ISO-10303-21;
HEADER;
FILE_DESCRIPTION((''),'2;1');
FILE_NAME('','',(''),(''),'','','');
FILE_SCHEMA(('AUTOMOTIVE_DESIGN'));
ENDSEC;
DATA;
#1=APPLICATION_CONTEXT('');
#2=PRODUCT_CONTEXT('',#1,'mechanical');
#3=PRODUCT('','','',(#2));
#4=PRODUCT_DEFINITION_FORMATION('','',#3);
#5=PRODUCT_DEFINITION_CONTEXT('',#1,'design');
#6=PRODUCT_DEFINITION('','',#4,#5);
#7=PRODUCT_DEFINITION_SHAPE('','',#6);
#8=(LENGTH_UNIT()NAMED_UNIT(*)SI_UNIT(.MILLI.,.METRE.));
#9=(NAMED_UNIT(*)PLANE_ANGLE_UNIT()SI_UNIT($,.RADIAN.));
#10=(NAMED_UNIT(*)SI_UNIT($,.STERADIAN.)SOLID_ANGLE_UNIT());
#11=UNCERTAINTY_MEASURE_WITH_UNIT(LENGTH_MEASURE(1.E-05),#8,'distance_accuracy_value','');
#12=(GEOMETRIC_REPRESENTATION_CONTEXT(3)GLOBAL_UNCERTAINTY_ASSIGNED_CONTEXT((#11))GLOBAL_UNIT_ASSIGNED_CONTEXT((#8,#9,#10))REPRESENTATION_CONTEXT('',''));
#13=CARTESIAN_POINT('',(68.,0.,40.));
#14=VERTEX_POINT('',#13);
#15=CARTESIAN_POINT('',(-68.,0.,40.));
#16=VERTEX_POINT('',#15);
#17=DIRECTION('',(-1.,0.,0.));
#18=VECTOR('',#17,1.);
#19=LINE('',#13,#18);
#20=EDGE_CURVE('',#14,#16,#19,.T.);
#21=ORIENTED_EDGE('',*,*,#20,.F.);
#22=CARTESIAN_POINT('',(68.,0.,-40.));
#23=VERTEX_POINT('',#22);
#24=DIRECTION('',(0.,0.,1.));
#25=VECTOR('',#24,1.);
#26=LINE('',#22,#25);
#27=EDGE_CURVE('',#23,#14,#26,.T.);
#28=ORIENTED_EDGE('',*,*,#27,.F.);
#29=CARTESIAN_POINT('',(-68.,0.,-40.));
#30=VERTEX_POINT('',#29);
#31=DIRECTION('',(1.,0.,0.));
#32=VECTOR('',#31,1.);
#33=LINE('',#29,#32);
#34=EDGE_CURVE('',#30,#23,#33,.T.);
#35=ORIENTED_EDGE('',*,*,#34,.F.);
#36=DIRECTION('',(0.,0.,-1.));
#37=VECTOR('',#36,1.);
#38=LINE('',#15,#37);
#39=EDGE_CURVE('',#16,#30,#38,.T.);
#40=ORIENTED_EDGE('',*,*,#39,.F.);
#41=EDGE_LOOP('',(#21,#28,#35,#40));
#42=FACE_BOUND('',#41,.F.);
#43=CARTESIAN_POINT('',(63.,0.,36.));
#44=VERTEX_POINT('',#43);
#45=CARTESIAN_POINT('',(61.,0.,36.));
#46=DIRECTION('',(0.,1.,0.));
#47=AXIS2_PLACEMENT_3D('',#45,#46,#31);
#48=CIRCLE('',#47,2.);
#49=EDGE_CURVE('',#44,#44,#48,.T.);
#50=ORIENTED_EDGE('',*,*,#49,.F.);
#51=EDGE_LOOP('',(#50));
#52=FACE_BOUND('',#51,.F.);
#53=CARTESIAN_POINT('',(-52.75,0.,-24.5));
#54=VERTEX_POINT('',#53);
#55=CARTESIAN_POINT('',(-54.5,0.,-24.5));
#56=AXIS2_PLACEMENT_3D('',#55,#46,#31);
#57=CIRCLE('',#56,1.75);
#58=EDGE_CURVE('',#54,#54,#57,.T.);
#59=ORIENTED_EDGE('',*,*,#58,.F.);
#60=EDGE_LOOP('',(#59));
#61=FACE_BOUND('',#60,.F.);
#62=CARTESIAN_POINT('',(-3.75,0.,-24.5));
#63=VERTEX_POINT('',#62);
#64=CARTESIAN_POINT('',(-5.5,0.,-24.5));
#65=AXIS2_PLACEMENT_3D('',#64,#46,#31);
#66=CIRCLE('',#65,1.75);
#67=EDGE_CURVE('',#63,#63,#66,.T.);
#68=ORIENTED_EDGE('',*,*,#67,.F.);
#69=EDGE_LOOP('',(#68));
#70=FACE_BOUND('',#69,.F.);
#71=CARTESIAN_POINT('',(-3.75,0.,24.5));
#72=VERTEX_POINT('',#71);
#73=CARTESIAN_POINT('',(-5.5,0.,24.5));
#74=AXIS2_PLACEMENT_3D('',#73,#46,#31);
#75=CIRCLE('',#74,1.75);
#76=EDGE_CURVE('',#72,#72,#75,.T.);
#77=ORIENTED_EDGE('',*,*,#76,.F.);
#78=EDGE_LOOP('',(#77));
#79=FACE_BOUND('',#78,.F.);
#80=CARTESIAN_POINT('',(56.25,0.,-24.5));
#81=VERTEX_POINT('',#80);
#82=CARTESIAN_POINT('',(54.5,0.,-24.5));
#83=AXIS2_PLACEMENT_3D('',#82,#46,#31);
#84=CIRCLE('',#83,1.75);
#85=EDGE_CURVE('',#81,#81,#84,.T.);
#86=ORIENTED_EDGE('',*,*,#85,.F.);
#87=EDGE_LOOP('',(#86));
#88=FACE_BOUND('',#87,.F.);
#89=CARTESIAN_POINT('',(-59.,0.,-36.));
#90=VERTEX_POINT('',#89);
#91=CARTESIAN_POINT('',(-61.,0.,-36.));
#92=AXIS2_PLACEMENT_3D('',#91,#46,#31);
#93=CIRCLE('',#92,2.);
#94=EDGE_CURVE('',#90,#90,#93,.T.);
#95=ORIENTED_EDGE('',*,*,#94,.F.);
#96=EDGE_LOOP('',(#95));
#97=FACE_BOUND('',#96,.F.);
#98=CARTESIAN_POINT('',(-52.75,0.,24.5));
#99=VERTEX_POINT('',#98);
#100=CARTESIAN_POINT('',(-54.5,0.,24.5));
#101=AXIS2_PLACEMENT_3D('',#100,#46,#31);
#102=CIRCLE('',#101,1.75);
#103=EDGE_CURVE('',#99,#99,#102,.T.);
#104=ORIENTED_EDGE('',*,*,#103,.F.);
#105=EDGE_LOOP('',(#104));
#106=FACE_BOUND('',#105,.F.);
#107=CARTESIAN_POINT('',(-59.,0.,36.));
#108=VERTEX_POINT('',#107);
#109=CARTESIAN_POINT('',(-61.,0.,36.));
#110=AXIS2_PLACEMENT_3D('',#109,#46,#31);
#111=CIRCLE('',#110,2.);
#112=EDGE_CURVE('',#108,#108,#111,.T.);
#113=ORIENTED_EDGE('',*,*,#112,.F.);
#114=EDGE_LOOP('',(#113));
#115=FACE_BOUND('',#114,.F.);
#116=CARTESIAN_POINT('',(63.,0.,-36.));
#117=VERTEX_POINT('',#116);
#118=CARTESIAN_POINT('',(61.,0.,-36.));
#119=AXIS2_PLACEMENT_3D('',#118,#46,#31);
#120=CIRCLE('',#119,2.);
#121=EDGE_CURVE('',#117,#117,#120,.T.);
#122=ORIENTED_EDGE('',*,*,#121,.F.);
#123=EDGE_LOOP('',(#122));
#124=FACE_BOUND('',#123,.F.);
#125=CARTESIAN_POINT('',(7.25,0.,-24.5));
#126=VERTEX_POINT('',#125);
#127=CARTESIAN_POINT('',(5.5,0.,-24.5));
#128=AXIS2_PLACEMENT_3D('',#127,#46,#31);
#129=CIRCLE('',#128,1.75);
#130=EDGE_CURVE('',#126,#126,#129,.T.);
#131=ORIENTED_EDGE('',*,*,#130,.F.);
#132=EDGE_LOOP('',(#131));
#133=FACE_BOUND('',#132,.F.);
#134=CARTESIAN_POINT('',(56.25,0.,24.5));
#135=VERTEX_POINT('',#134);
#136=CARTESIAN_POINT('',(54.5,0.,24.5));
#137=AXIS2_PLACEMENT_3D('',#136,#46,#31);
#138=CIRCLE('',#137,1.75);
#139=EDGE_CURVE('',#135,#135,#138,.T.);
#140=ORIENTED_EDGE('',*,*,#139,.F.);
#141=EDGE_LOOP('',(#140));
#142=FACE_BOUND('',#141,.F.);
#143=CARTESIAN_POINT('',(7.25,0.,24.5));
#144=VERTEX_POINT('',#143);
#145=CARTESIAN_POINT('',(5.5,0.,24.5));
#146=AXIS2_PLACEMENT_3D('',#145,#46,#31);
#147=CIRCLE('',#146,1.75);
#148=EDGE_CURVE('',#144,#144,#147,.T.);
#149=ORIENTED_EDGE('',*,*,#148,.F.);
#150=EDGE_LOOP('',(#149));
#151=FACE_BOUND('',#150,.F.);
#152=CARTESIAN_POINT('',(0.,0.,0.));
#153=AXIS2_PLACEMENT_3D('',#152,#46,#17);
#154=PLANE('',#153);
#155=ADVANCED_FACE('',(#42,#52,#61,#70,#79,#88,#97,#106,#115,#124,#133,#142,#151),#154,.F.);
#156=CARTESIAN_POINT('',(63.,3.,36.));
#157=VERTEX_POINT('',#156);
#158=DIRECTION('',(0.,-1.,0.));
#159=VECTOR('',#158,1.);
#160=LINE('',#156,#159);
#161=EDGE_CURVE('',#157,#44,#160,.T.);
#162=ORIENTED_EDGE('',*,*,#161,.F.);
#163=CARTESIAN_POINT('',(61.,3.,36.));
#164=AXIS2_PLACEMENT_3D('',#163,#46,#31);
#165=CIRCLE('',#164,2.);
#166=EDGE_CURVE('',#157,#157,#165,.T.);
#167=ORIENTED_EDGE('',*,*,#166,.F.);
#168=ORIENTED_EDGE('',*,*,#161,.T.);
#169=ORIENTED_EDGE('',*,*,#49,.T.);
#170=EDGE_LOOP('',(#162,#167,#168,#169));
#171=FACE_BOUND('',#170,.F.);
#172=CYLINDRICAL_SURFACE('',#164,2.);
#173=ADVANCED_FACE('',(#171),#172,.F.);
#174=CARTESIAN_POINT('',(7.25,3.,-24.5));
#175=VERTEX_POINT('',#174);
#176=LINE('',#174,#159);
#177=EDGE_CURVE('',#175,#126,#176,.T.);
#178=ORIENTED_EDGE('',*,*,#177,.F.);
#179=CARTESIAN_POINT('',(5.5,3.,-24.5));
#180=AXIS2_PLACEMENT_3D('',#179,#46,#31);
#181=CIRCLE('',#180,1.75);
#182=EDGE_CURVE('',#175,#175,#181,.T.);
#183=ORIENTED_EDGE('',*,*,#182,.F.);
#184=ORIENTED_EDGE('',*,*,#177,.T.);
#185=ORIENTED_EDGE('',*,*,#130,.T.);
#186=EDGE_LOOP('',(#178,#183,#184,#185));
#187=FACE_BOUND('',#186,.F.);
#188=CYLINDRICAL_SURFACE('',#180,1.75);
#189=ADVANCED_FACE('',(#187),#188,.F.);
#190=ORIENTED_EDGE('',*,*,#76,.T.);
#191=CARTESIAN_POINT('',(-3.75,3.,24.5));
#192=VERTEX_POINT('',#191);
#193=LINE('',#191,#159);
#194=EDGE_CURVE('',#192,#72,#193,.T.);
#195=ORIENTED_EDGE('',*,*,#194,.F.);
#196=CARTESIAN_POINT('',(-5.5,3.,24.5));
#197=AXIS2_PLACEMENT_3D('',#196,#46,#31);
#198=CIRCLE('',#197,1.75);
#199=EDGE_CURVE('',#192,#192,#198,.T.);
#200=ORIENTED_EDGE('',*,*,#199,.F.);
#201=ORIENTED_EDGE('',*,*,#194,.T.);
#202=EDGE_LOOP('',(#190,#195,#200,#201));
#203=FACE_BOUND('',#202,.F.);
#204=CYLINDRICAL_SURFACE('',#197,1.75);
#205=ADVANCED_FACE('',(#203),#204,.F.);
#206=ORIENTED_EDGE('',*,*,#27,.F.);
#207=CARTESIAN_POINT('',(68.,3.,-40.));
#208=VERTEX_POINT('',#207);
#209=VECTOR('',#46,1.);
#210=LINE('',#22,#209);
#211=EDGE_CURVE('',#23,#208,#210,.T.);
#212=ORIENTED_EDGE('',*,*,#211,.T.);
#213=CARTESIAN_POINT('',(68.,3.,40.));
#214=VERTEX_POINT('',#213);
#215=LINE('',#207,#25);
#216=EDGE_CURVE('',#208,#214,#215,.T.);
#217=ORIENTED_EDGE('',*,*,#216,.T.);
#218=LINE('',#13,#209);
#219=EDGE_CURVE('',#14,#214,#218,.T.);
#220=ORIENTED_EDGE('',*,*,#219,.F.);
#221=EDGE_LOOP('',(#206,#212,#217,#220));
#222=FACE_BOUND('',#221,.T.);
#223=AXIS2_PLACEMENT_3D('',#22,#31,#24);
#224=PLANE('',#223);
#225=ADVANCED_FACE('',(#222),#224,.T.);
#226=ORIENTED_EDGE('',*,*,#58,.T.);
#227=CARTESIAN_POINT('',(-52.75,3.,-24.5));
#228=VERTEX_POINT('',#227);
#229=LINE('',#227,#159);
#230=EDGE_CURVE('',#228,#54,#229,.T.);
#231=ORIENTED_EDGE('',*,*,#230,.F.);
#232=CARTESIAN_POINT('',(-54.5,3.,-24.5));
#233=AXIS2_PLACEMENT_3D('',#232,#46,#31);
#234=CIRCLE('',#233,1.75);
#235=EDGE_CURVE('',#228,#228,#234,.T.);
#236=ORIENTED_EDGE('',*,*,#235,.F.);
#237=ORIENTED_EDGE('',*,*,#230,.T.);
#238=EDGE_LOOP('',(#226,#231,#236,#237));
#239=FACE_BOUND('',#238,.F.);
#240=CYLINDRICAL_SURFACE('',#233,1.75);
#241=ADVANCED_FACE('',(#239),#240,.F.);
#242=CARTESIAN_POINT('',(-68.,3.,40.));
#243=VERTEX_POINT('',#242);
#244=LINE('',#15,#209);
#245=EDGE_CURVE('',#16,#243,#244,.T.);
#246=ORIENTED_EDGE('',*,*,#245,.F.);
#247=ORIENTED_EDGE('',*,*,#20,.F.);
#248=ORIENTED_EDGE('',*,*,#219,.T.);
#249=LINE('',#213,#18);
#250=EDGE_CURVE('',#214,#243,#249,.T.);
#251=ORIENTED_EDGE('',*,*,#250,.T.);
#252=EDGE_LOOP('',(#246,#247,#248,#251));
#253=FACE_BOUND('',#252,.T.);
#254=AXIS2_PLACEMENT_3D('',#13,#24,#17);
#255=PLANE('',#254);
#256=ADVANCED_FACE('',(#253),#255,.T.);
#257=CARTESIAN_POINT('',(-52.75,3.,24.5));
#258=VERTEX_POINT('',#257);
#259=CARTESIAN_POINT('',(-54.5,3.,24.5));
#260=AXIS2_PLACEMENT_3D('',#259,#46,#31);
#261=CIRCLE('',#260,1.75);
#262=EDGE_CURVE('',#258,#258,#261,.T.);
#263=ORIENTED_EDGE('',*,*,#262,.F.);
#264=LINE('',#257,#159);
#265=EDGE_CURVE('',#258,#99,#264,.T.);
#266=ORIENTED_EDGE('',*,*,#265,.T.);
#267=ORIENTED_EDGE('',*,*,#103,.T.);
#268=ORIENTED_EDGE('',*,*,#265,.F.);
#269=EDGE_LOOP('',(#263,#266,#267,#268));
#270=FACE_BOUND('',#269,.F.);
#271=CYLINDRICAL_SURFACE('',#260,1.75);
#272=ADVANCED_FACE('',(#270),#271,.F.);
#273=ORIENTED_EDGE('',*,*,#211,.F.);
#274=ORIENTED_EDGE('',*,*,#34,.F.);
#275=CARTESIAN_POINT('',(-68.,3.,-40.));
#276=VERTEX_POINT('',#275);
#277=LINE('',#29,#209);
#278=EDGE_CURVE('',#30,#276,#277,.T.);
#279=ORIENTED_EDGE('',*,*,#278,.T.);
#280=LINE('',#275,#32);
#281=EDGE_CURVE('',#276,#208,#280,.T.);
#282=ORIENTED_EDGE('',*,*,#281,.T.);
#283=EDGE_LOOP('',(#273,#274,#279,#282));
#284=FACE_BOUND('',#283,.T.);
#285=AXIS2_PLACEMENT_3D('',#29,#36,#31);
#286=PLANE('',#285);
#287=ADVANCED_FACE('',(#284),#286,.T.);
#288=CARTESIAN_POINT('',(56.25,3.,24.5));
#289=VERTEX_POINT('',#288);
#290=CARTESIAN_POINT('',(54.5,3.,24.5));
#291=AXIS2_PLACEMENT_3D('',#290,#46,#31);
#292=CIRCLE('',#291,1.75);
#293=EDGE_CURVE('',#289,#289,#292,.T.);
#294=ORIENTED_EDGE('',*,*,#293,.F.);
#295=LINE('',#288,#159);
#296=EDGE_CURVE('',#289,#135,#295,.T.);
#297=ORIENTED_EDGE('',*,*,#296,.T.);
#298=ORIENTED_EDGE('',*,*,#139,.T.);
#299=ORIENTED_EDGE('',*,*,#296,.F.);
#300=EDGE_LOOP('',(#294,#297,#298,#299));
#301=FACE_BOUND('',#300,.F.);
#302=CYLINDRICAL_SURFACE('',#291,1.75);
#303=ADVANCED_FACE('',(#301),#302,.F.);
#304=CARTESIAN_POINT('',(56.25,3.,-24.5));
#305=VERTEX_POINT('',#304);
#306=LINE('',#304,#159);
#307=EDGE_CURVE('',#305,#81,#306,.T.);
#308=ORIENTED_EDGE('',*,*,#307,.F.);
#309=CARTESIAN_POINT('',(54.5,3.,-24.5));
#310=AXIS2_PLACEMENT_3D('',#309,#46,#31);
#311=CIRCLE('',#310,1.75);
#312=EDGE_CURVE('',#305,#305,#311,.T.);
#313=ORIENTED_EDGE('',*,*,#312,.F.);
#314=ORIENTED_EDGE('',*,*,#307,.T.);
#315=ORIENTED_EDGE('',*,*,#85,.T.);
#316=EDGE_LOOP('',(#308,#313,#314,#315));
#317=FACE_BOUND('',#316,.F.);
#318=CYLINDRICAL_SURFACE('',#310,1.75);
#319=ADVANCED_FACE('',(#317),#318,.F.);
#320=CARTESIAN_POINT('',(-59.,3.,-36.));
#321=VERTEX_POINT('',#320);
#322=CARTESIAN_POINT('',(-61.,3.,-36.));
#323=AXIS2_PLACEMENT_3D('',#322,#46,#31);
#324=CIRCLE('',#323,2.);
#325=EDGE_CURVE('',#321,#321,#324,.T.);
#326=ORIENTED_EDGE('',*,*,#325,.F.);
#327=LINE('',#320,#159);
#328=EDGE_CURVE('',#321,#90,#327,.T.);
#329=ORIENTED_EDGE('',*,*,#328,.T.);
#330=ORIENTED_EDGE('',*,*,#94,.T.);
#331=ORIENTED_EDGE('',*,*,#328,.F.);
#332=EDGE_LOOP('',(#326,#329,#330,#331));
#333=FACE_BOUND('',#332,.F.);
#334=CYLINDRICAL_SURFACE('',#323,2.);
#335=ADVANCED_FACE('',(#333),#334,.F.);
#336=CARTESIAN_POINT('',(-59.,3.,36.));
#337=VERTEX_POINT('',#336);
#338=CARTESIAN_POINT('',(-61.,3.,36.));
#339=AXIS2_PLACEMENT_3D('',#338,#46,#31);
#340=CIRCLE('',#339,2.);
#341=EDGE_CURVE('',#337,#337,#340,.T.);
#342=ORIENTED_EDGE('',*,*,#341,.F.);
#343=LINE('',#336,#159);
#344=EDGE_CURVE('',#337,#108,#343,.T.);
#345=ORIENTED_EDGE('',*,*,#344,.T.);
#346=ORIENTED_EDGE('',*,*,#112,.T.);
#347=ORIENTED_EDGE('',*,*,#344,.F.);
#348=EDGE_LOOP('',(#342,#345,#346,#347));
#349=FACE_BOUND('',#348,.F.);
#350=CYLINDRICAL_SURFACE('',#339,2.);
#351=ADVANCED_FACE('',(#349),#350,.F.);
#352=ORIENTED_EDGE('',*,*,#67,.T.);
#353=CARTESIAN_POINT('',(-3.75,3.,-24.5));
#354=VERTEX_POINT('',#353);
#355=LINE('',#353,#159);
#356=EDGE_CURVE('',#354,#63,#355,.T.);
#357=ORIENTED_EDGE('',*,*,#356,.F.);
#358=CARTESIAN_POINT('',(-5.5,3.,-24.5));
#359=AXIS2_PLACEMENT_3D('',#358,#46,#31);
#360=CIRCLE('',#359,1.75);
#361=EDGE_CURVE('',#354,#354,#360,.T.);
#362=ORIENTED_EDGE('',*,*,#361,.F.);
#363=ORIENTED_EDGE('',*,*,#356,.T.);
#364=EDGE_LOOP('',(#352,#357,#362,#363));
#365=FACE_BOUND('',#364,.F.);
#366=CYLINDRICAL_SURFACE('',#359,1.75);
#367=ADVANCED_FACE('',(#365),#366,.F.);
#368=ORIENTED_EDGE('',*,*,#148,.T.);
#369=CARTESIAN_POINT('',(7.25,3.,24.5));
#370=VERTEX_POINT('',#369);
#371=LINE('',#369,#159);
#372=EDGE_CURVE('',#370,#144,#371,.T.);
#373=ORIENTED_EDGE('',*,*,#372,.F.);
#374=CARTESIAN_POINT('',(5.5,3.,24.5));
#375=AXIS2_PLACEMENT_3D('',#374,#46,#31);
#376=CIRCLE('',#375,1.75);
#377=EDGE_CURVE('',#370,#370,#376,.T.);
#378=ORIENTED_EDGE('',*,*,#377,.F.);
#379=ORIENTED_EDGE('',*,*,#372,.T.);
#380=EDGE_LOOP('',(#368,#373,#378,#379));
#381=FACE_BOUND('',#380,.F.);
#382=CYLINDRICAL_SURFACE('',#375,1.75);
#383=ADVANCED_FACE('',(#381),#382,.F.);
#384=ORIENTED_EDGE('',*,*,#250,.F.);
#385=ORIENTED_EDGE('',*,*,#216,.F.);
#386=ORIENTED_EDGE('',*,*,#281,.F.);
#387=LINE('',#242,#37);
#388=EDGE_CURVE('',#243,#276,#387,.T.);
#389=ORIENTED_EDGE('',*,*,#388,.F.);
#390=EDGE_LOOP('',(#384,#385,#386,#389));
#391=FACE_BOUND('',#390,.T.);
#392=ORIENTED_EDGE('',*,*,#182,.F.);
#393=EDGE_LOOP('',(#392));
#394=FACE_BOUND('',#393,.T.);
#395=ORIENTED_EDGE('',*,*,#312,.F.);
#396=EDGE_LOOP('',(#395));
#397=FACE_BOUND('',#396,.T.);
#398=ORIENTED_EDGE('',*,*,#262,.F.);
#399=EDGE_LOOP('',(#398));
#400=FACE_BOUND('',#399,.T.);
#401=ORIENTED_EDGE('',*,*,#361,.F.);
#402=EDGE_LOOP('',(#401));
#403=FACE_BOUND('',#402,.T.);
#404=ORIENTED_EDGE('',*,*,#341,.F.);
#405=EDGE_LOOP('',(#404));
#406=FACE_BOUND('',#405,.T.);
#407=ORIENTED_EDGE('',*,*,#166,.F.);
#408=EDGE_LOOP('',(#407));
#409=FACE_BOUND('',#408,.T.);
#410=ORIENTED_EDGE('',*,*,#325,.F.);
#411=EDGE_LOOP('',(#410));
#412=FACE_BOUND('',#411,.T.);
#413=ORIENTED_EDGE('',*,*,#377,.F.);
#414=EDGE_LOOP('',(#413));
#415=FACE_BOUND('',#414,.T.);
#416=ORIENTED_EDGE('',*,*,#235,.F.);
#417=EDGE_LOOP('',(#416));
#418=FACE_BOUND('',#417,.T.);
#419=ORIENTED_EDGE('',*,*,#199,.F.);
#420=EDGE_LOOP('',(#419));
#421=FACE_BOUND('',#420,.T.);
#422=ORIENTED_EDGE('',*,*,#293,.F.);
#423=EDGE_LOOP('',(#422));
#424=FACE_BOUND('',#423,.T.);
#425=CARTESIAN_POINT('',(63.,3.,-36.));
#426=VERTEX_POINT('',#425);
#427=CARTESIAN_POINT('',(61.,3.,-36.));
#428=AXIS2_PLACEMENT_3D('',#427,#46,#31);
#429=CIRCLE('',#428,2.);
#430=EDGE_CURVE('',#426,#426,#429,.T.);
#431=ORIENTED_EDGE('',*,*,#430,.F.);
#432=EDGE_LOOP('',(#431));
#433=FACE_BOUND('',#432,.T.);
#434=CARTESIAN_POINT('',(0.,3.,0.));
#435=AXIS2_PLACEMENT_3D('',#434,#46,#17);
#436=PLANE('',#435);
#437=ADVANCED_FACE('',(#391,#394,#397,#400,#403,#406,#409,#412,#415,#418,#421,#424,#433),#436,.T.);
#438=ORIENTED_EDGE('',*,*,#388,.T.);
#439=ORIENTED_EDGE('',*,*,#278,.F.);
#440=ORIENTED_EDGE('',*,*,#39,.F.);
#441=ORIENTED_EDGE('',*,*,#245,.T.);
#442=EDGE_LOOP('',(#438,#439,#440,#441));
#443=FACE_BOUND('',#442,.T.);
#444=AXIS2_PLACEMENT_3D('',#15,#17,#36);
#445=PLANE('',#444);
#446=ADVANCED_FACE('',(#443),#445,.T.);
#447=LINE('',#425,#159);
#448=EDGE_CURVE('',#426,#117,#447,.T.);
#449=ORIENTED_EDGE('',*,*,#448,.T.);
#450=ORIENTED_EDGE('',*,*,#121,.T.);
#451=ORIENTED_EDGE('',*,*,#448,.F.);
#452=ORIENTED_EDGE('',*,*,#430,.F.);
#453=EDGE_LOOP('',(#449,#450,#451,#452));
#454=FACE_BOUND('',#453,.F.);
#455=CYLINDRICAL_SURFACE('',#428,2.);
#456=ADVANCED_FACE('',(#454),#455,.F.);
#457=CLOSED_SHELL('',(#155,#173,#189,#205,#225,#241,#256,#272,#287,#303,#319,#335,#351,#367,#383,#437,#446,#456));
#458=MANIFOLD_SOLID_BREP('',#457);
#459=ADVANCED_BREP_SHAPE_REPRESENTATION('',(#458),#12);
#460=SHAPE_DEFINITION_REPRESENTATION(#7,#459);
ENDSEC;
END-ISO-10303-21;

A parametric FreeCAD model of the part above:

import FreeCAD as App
import Part
import Sketcher

doc = App.newDocument("Part")
body = doc.addObject("PartDesign::Body", "Body")

# Sketch on XZ plane
sketch1 = body.newObject("Sketcher::SketchObject", "Sketch")
sketch1.AttachmentSupport = (doc.getObject("XZ_Plane"), [""])
sketch1.MapMode = "FlatFace"
sketch1.addGeometry([
    Part.LineSegment(App.Vector(-68, 40, 0), App.Vector(68, 40, 0)),
    Part.LineSegment(App.Vector(68, 40, 0), App.Vector(68, -40, 0)),
    Part.LineSegment(App.Vector(68, -40, 0), App.Vector(-68, -40, 0)),
    Part.LineSegment(App.Vector(-68, -40, 0), App.Vector(-68, 40, 0)),
], False)
sketch1.addConstraint([
    Sketcher.Constraint("Coincident", 0, 2, 1, 1),
    Sketcher.Constraint("Coincident", 1, 2, 2, 1),
    Sketcher.Constraint("Coincident", 2, 2, 3, 1),
    Sketcher.Constraint("Coincident", 3, 2, 0, 1),
    Sketcher.Constraint("Horizontal", 0),
    Sketcher.Constraint("Vertical", 1),
    Sketcher.Constraint("Horizontal", 2),
    Sketcher.Constraint("Vertical", 3),
    Sketcher.Constraint("Symmetric", 0, 2, 2, 2, -1, 1),
    Sketcher.Constraint("DistanceX", 0, 1, 0, 2, 136.0),
    Sketcher.Constraint("DistanceY", 1, 2, 1, 1, 80.0),
])
pad1 = body.newObject("PartDesign::Pad", "Pad")
pad1.Profile = sketch1
pad1.Length = 3
pad1.Reversed = True

# Sketch on XZ plane
sketch2 = body.newObject("Sketcher::SketchObject", "Sketch001")
sketch2.AttachmentSupport = (doc.getObject("XZ_Plane"), [""])
sketch2.MapMode = "FlatFace"
sketch2.AttachmentOffset = App.Placement(App.Vector(0, 0, -3), App.Rotation())
sketch2.addGeometry([
    Part.Circle(App.Vector(-54.5, -24.5, 0), App.Vector(0, 0, 1), 1.75),  # 0
    Part.Circle(App.Vector(-5.5, -24.5, 0), App.Vector(0, 0, 1), 1.75),  # 1
    Part.Circle(App.Vector(5.5, -24.5, 0), App.Vector(0, 0, 1), 1.75),  # 2
    Part.Circle(App.Vector(54.5, -24.5, 0), App.Vector(0, 0, 1), 1.75),  # 3
    Part.Circle(App.Vector(54.5, 24.5, 0), App.Vector(0, 0, 1), 1.75),  # 4
    Part.Circle(App.Vector(5.5, 24.5, 0), App.Vector(0, 0, 1), 1.75),  # 5
    Part.Circle(App.Vector(-5.5, 24.5, 0), App.Vector(0, 0, 1), 1.75),  # 6
    Part.Circle(App.Vector(-54.5, 24.5, 0), App.Vector(0, 0, 1), 1.75),  # 7
    Part.Circle(App.Vector(-61, -36, 0), App.Vector(0, 0, 1), 2),  # 8
    Part.Circle(App.Vector(61, -36, 0), App.Vector(0, 0, 1), 2),  # 9
    Part.Circle(App.Vector(-61, 36, 0), App.Vector(0, 0, 1), 2),  # 10
    Part.Circle(App.Vector(61, 36, 0), App.Vector(0, 0, 1), 2),  # 11
], False)
sketch2.addConstraint([
    Sketcher.Constraint("Equal", 0, 1),
    Sketcher.Constraint("Equal", 1, 2),
    Sketcher.Constraint("Equal", 2, 3),
    Sketcher.Constraint("Equal", 3, 4),
    Sketcher.Constraint("Equal", 4, 5),
    Sketcher.Constraint("Equal", 5, 6),
    Sketcher.Constraint("Equal", 6, 7),
    Sketcher.Constraint("Equal", 8, 9),
    Sketcher.Constraint("Equal", 9, 10),
    Sketcher.Constraint("Equal", 10, 11),
    Sketcher.Constraint("Symmetric", 0, 3, 4, 3, -1, 1),
    Sketcher.Constraint("Symmetric", 1, 3, 5, 3, -1, 1),
    Sketcher.Constraint("Symmetric", 2, 3, 6, 3, -1, 1),
    Sketcher.Constraint("Symmetric", 3, 3, 7, 3, -1, 1),
    Sketcher.Constraint("Symmetric", 9, 3, 10, 3, -1, 1),
    Sketcher.Constraint("Symmetric", 8, 3, 11, 3, -1, 1),
    Sketcher.Constraint("Symmetric", 1, 3, 2, 3, -2),
    Sketcher.Constraint("Symmetric", 0, 3, 3, 3, -2),
    Sketcher.Constraint("Symmetric", 8, 3, 9, 3, -2),
    Sketcher.Constraint("Horizontal", 0, 3, 1, 3),
    Sketcher.Constraint("Diameter", 8, 4.0),
    Sketcher.Constraint("Diameter", 0, 3.5),
    Sketcher.Constraint("DistanceX", 0, 3, 1, 3, 49.0),
    Sketcher.Constraint("DistanceX", 1, 3, 2, 3, 11.0),
    Sketcher.Constraint("DistanceY", 3, 3, 4, 3, 49.0),
    Sketcher.Constraint("DistanceX", 8, 3, -1, 1, 61.0),
    Sketcher.Constraint("DistanceY", 8, 3, -1, 1, 36.0),
])
pocket1 = body.newObject("PartDesign::Pocket", "Pocket")
pocket1.Profile = sketch2
pocket1.Length = 3
pocket1.Reversed = True

doc.recompute()
